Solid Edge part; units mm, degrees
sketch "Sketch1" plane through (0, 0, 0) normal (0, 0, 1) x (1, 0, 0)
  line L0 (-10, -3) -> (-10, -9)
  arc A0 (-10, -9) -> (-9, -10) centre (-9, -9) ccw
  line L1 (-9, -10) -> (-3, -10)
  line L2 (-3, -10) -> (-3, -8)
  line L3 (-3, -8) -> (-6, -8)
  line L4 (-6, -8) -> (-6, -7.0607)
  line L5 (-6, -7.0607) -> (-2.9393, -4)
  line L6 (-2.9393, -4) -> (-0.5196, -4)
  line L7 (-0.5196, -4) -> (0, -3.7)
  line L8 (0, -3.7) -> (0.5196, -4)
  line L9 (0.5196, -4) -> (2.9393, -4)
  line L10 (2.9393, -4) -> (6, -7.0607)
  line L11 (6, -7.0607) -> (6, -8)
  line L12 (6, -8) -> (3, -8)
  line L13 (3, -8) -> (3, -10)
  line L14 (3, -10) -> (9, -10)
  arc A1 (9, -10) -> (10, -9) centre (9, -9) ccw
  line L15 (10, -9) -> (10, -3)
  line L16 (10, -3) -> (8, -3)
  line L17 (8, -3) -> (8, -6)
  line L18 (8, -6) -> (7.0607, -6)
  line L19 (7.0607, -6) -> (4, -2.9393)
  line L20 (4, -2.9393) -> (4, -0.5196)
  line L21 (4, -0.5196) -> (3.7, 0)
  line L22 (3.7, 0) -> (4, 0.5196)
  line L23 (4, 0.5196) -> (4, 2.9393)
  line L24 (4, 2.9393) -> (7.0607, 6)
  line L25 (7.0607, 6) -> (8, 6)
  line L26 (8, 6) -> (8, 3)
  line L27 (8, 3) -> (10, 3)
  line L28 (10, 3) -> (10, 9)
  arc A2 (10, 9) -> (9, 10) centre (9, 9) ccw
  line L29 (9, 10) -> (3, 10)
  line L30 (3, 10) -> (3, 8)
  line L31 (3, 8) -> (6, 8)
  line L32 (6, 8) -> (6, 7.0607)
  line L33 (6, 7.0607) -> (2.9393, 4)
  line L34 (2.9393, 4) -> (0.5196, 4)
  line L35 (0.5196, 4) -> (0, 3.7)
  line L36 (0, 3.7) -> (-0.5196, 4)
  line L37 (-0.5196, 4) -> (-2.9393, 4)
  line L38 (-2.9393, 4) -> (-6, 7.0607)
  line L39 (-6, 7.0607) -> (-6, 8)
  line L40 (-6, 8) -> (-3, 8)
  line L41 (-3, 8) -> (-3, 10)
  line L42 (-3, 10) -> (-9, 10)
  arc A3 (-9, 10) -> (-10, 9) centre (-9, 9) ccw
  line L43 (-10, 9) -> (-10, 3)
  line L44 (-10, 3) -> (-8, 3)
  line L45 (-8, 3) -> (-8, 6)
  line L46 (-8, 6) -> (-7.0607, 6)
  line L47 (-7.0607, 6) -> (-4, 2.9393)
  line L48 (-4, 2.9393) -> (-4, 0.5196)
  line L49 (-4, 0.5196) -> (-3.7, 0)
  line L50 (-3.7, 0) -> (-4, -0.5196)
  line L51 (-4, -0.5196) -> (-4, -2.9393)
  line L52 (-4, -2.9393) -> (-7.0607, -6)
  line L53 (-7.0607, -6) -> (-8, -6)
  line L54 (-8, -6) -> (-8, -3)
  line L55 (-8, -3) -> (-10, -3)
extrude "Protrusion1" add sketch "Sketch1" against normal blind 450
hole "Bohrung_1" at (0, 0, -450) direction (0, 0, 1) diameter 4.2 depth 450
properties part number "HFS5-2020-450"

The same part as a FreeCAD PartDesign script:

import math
import FreeCAD as App
import Part
import Sketcher

V = App.Vector
Q = App.Units.Quantity

doc = App.newDocument("Part")
params = doc.addObject("Spreadsheet::Sheet", "Params")
for row, (alias, value) in enumerate([
    ("sketch1_radius", "1 mm"),
    ("sketch1_width", "2 mm"),
    ("sketch1_width2", "6 mm"),
    ("sketch1_width3", "3 mm"),
    ("sketch1_length", "0.6 mm"),
    ("pad1_length", "450 mm"),
    ("sketch2_diameter", "4.2 mm"),
    ("hole_diameter", "4.2 mm"),
    ("hole_depth", "450 mm"),
], start=1):
    params.set(f"A{row}", alias)
    params.set(f"B{row}", "=" + value)
    params.setAlias(f"B{row}", alias)

body = doc.addObject("PartDesign::Body", "Body")

# Sketch on XY plane
sketch1 = body.newObject("Sketcher::SketchObject", "Sketch")
sketch1.AttachmentSupport = (doc.getObject("XY_Plane"), [""])
sketch1.MapMode = "FlatFace"
sketch1.addGeometry([
    Part.LineSegment(V(-8, -3, 0), V(-10, -3, 0)),  # 0
    Part.LineSegment(V(-10, -3, 0), V(-10, -9, 0)),  # 1
    Part.ArcOfCircle(Part.Circle(V(-9, -9, 0), V(0, 0, 1), 1), math.radians(180), math.radians(270)),  # 2
    Part.LineSegment(V(-9, -10, 0), V(-3, -10, 0)),  # 3
    Part.LineSegment(V(-3, -10, 0), V(-3, -8, 0)),  # 4
    Part.LineSegment(V(-3, -8, 0), V(-6, -8, 0)),  # 5
    Part.LineSegment(V(-6, -8, 0), V(-6, -7.1, 0)),  # 6
    Part.LineSegment(V(-6, -7.1, 0), V(-2.9, -4, 0)),  # 7
    Part.LineSegment(V(-2.9, -4, 0), V(-0.5, -4, 0)),  # 8
    Part.LineSegment(V(-0.5, -4, 0), V(0, -3.7, 0)),  # 9
    Part.LineSegment(V(0, -3.7, 0), V(0.5, -4, 0)),  # 10
    Part.LineSegment(V(0.5, -4, 0), V(2.9, -4, 0)),  # 11
    Part.LineSegment(V(2.9, -4, 0), V(6, -7.1, 0)),  # 12
    Part.LineSegment(V(6, -7.1, 0), V(6, -8, 0)),  # 13
    Part.LineSegment(V(6, -8, 0), V(3, -8, 0)),  # 14
    Part.LineSegment(V(3, -8, 0), V(3, -10, 0)),  # 15
    Part.LineSegment(V(3, -10, 0), V(9, -10, 0)),  # 16
    Part.ArcOfCircle(Part.Circle(V(9, -9, 0), V(0, 0, 1), 1), math.radians(-90), math.radians(0)),  # 17
    Part.LineSegment(V(10, -9, 0), V(10, -3, 0)),  # 18
    Part.LineSegment(V(10, -3, 0), V(8, -3, 0)),  # 19
    Part.LineSegment(V(8, -3, 0), V(8, -6, 0)),  # 20
    Part.LineSegment(V(8, -6, 0), V(7.1, -6, 0)),  # 21
    Part.LineSegment(V(7.1, -6, 0), V(4, -2.9, 0)),  # 22
    Part.LineSegment(V(4, -2.9, 0), V(4, -0.5, 0)),  # 23
    Part.LineSegment(V(4, -0.5, 0), V(3.7, 0, 0)),  # 24
    Part.LineSegment(V(3.7, 0, 0), V(4, 0.5, 0)),  # 25
    Part.LineSegment(V(4, 0.5, 0), V(4, 2.9, 0)),  # 26
    Part.LineSegment(V(4, 2.9, 0), V(7.1, 6, 0)),  # 27
    Part.LineSegment(V(7.1, 6, 0), V(8, 6, 0)),  # 28
    Part.LineSegment(V(8, 6, 0), V(8, 3, 0)),  # 29
    Part.LineSegment(V(8, 3, 0), V(10, 3, 0)),  # 30
    Part.LineSegment(V(10, 3, 0), V(10, 9, 0)),  # 31
    Part.ArcOfCircle(Part.Circle(V(9, 9, 0), V(0, 0, 1), 1), math.radians(0), math.radians(90)),  # 32
    Part.LineSegment(V(9, 10, 0), V(3, 10, 0)),  # 33
    Part.LineSegment(V(3, 10, 0), V(3, 8, 0)),  # 34
    Part.LineSegment(V(3, 8, 0), V(6, 8, 0)),  # 35
    Part.LineSegment(V(6, 8, 0), V(6, 7.1, 0)),  # 36
    Part.LineSegment(V(6, 7.1, 0), V(2.9, 4, 0)),  # 37
    Part.LineSegment(V(2.9, 4, 0), V(0.5, 4, 0)),  # 38
    Part.LineSegment(V(0.5, 4, 0), V(0, 3.7, 0)),  # 39
    Part.LineSegment(V(0, 3.7, 0), V(-0.5, 4, 0)),  # 40
    Part.LineSegment(V(-0.5, 4, 0), V(-2.9, 4, 0)),  # 41
    Part.LineSegment(V(-2.9, 4, 0), V(-6, 7.1, 0)),  # 42
    Part.LineSegment(V(-6, 7.1, 0), V(-6, 8, 0)),  # 43
    Part.LineSegment(V(-6, 8, 0), V(-3, 8, 0)),  # 44
    Part.LineSegment(V(-3, 8, 0), V(-3, 10, 0)),  # 45
    Part.LineSegment(V(-3, 10, 0), V(-9, 10, 0)),  # 46
    Part.ArcOfCircle(Part.Circle(V(-9, 9, 0), V(0, 0, 1), 1), math.radians(90), math.radians(180)),  # 47
    Part.LineSegment(V(-10, 9, 0), V(-10, 3, 0)),  # 48
    Part.LineSegment(V(-10, 3, 0), V(-8, 3, 0)),  # 49
    Part.LineSegment(V(-8, 3, 0), V(-8, 6, 0)),  # 50
    Part.LineSegment(V(-8, 6, 0), V(-7.1, 6, 0)),  # 51
    Part.LineSegment(V(-7.1, 6, 0), V(-4, 2.9, 0)),  # 52
    Part.LineSegment(V(-4, 2.9, 0), V(-4, 0.5, 0)),  # 53
    Part.LineSegment(V(-4, 0.5, 0), V(-3.7, 0, 0)),  # 54
    Part.LineSegment(V(-3.7, 0, 0), V(-4, -0.5, 0)),  # 55
    Part.LineSegment(V(-4, -0.5, 0), V(-4, -2.9, 0)),  # 56
    Part.LineSegment(V(-4, -2.9, 0), V(-7.1, -6, 0)),  # 57
    Part.LineSegment(V(-7.1, -6, 0), V(-8, -6, 0)),  # 58
    Part.LineSegment(V(-8, -6, 0), V(-8, -3, 0)),  # 59
], False)
sketch1.addConstraint([
    Sketcher.Constraint("Coincident", 0, 2, 1, 1),
    Sketcher.Constraint("Tangent", 1, 2, 2, 1),
    Sketcher.Constraint("Tangent", 2, 2, 3, 1),
    Sketcher.Constraint("Coincident", 3, 2, 4, 1),
    Sketcher.Constraint("Coincident", 4, 2, 5, 1),
    Sketcher.Constraint("Coincident", 5, 2, 6, 1),
    Sketcher.Constraint("Coincident", 6, 2, 7, 1),
    Sketcher.Constraint("Coincident", 7, 2, 8, 1),
    Sketcher.Constraint("Coincident", 8, 2, 9, 1),
    Sketcher.Constraint("Coincident", 9, 2, 10, 1),
    Sketcher.Constraint("Coincident", 10, 2, 11, 1),
    Sketcher.Constraint("Coincident", 11, 2, 12, 1),
    Sketcher.Constraint("Coincident", 12, 2, 13, 1),
    Sketcher.Constraint("Coincident", 13, 2, 14, 1),
    Sketcher.Constraint("Coincident", 14, 2, 15, 1),
    Sketcher.Constraint("Coincident", 15, 2, 16, 1),
    Sketcher.Constraint("Tangent", 16, 2, 17, 1),
    Sketcher.Constraint("Tangent", 17, 2, 18, 1),
    Sketcher.Constraint("Coincident", 18, 2, 19, 1),
    Sketcher.Constraint("Coincident", 19, 2, 20, 1),
    Sketcher.Constraint("Coincident", 20, 2, 21, 1),
    Sketcher.Constraint("Coincident", 21, 2, 22, 1),
    Sketcher.Constraint("Coincident", 22, 2, 23, 1),
    Sketcher.Constraint("Coincident", 23, 2, 24, 1),
    Sketcher.Constraint("Coincident", 24, 2, 25, 1),
    Sketcher.Constraint("Coincident", 25, 2, 26, 1),
    Sketcher.Constraint("Coincident", 26, 2, 27, 1),
    Sketcher.Constraint("Coincident", 27, 2, 28, 1),
    Sketcher.Constraint("Coincident", 28, 2, 29, 1),
    Sketcher.Constraint("Coincident", 29, 2, 30, 1),
    Sketcher.Constraint("Coincident", 30, 2, 31, 1),
    Sketcher.Constraint("Tangent", 31, 2, 32, 1),
    Sketcher.Constraint("Tangent", 32, 2, 33, 1),
    Sketcher.Constraint("Coincident", 33, 2, 34, 1),
    Sketcher.Constraint("Coincident", 34, 2, 35, 1),
    Sketcher.Constraint("Coincident", 35, 2, 36, 1),
    Sketcher.Constraint("Coincident", 36, 2, 37, 1),
    Sketcher.Constraint("Coincident", 37, 2, 38, 1),
    Sketcher.Constraint("Coincident", 38, 2, 39, 1),
    Sketcher.Constraint("Coincident", 39, 2, 40, 1),
    Sketcher.Constraint("Coincident", 40, 2, 41, 1),
    Sketcher.Constraint("Coincident", 41, 2, 42, 1),
    Sketcher.Constraint("Coincident", 42, 2, 43, 1),
    Sketcher.Constraint("Coincident", 43, 2, 44, 1),
    Sketcher.Constraint("Coincident", 44, 2, 45, 1),
    Sketcher.Constraint("Coincident", 45, 2, 46, 1),
    Sketcher.Constraint("Tangent", 46, 2, 47, 1),
    Sketcher.Constraint("Tangent", 47, 2, 48, 1),
    Sketcher.Constraint("Coincident", 48, 2, 49, 1),
    Sketcher.Constraint("Coincident", 49, 2, 50, 1),
    Sketcher.Constraint("Coincident", 50, 2, 51, 1),
    Sketcher.Constraint("Coincident", 51, 2, 52, 1),
    Sketcher.Constraint("Coincident", 52, 2, 53, 1),
    Sketcher.Constraint("Coincident", 53, 2, 54, 1),
    Sketcher.Constraint("Coincident", 54, 2, 55, 1),
    Sketcher.Constraint("Coincident", 55, 2, 56, 1),
    Sketcher.Constraint("Coincident", 56, 2, 57, 1),
    Sketcher.Constraint("Coincident", 57, 2, 58, 1),
    Sketcher.Constraint("Coincident", 58, 2, 59, 1),
    Sketcher.Constraint("Coincident", 59, 2, 0, 1),
    Sketcher.Constraint("Horizontal", 0),
    Sketcher.Constraint("Vertical", 1),
    Sketcher.Constraint("Horizontal", 3),
    Sketcher.Constraint("Vertical", 4),
    Sketcher.Constraint("Horizontal", 5),
    Sketcher.Constraint("Vertical", 6),
    Sketcher.Constraint("Horizontal", 8),
    Sketcher.Constraint("Horizontal", 11),
    Sketcher.Constraint("Vertical", 13),
    Sketcher.Constraint("Horizontal", 14),
    Sketcher.Constraint("Vertical", 15),
    Sketcher.Constraint("Horizontal", 16),
    Sketcher.Constraint("Vertical", 18),
    Sketcher.Constraint("Horizontal", 19),
    Sketcher.Constraint("Vertical", 20),
    Sketcher.Constraint("Horizontal", 21),
    Sketcher.Constraint("Vertical", 23),
    Sketcher.Constraint("Vertical", 26),
    Sketcher.Constraint("Horizontal", 28),
    Sketcher.Constraint("Vertical", 29),
    Sketcher.Constraint("Horizontal", 30),
    Sketcher.Constraint("Vertical", 31),
    Sketcher.Constraint("Horizontal", 33),
    Sketcher.Constraint("Vertical", 34),
    Sketcher.Constraint("Horizontal", 35),
    Sketcher.Constraint("Vertical", 36),
    Sketcher.Constraint("Horizontal", 38),
    Sketcher.Constraint("Horizontal", 41),
    Sketcher.Constraint("Vertical", 43),
    Sketcher.Constraint("Horizontal", 44),
    Sketcher.Constraint("Vertical", 45),
    Sketcher.Constraint("Horizontal", 46),
    Sketcher.Constraint("Vertical", 48),
    Sketcher.Constraint("Horizontal", 49),
    Sketcher.Constraint("Vertical", 50),
    Sketcher.Constraint("Horizontal", 51),
    Sketcher.Constraint("Vertical", 53),
    Sketcher.Constraint("Vertical", 56),
    Sketcher.Constraint("Horizontal", 58),
    Sketcher.Constraint("Vertical", 59),
    Sketcher.Constraint("Equal", 2, 17),
    Sketcher.Constraint("Equal", 17, 32),
    Sketcher.Constraint("Equal", 32, 47),
    Sketcher.Constraint("Symmetric", 2, 3, 32, 3, -1, 1),
    Sketcher.Constraint("Symmetric", 17, 3, 47, 3, -1, 1),
    Sketcher.Constraint("Symmetric", 4, 2, 34, 2, -1, 1),
    Sketcher.Constraint("Symmetric", 6, 2, 36, 2, -1, 1),
    Sketcher.Constraint("Symmetric", 7, 2, 37, 2, -1, 1),
    Sketcher.Constraint("Symmetric", 9, 2, 39, 2, -1, 1),
    Sketcher.Constraint("Symmetric", 10, 2, 40, 2, -1, 1),
    Sketcher.Constraint("Symmetric", 12, 2, 42, 2, -1, 1),
    Sketcher.Constraint("Symmetric", 14, 2, 44, 2, -1, 1),
    Sketcher.Constraint("Symmetric", 19, 2, 49, 2, -1, 1),
    Sketcher.Constraint("Symmetric", 21, 2, 51, 2, -1, 1),
    Sketcher.Constraint("Symmetric", 22, 2, 52, 2, -1, 1),
    Sketcher.Constraint("Symmetric", 24, 2, 54, 2, -1, 1),
    Sketcher.Constraint("Symmetric", 25, 2, 55, 2, -1, 1),
    Sketcher.Constraint("Symmetric", 27, 2, 57, 2, -1, 1),
    Sketcher.Constraint("Symmetric", 29, 2, 59, 2, -1, 1),
    Sketcher.Constraint("Symmetric", 2, 3, 17, 3, -2),
    Sketcher.Constraint("Symmetric", 8, 2, 10, 2, -2),
    Sketcher.Constraint("Symmetric", 6, 2, 12, 2, -2),
    Sketcher.Constraint("Symmetric", 4, 2, 14, 2, -2),
    Sketcher.Constraint("Symmetric", 29, 2, 49, 2, -2),
    Sketcher.Constraint("Symmetric", 27, 2, 51, 2, -2),
    Sketcher.Constraint("Symmetric", 26, 2, 52, 2, -2),
    Sketcher.Constraint("PointOnObject", 9, 2, -2),
    Sketcher.Constraint("PointOnObject", 24, 2, -1),
    Sketcher.Constraint("Perpendicular", 7, 12),
    Sketcher.Constraint("Parallel", 12, 22),
    Sketcher.Constraint("Perpendicular", 9, 24),
    Sketcher.Constraint("Perpendicular", 10, 25),
    Sketcher.Constraint("Perpendicular", 22, 27),
    Sketcher.Constraint("Perpendicular", 24, 39),
    Sketcher.Constraint("Perpendicular", 37, 42),
    Sketcher.Constraint("Perpendicular", 39, 54),
    Sketcher.Constraint("Perpendicular", 52, 57),
    Sketcher.Constraint("Equal", 46, 1),
    Sketcher.Constraint("Equal", 49, 4),
    Sketcher.Constraint("Equal", 58, 6),
    Sketcher.Constraint("Equal", 44, 20),
    Sketcher.Constraint("Equal", 41, 23),
    Sketcher.Constraint("Equal", 12, 22),
    Sketcher.Constraint("Equal", 10, 24),
    Sketcher.Constraint("Radius", 2, 1.0),
    Sketcher.Constraint("DistanceX", 0, 2, 0, 1, 2.0),
    Sketcher.Constraint("DistanceX", 3, 1, 3, 2, 6.0),
    Sketcher.Constraint("DistanceX", 5, 2, 5, 1, 3.0),
    Sketcher.Constraint("Angle", 9, Q("30.0007 deg")),
    Sketcher.Constraint("DistanceX", 2, 3, -1, 1, 9.0),
    Sketcher.Constraint("DistanceY", 7, 2, -1, 1, 4.0),
    Sketcher.Constraint("Distance", 9, 0.6),
    Sketcher.Constraint("DistanceX", 8, 1, 8, 2, 2.4197),
])
sketch1.setExpression("Constraints[144]", "Params.sketch1_radius")
sketch1.setExpression("Constraints[145]", "Params.sketch1_width")
sketch1.setExpression("Constraints[146]", "Params.sketch1_width2")
sketch1.setExpression("Constraints[147]", "Params.sketch1_width3")
sketch1.setExpression("Constraints[151]", "Params.sketch1_length")
pad1 = body.newObject("PartDesign::Pad", "Pad")
pad1.Profile = sketch1
pad1.setExpression("Length", "Params.pad1_length")
pad1.Reversed = True

# Sketch on XY plane
sketch2 = body.newObject("Sketcher::SketchObject", "Sketch001")
sketch2.AttachmentSupport = (doc.getObject("XY_Plane"), [""])
sketch2.MapMode = "FlatFace"
sketch2.AttachmentOffset = App.Placement(V(0, 0, -450), App.Rotation())
sketch2.addGeometry(Part.Circle(V(0, 0, 0), V(0, 0, 1), 2.1), False)
sketch2.addConstraint([
    Sketcher.Constraint("Coincident", 0, 3, -1, 1),
    Sketcher.Constraint("Diameter", 0, 4.2),
])
sketch2.setExpression("Constraints[1]", "Params.sketch2_diameter")
doc.recompute()
hole = body.newObject("PartDesign::Hole", "Hole")
hole.Profile = sketch2
hole.ThreadType = "None"
hole.setExpression("Diameter", "Params.hole_diameter")
hole.DepthType = "Dimension"
hole.setExpression("Depth", "Params.hole_depth")
hole.DrillPoint = "Flat"
hole.Reversed = True

doc.recompute()
